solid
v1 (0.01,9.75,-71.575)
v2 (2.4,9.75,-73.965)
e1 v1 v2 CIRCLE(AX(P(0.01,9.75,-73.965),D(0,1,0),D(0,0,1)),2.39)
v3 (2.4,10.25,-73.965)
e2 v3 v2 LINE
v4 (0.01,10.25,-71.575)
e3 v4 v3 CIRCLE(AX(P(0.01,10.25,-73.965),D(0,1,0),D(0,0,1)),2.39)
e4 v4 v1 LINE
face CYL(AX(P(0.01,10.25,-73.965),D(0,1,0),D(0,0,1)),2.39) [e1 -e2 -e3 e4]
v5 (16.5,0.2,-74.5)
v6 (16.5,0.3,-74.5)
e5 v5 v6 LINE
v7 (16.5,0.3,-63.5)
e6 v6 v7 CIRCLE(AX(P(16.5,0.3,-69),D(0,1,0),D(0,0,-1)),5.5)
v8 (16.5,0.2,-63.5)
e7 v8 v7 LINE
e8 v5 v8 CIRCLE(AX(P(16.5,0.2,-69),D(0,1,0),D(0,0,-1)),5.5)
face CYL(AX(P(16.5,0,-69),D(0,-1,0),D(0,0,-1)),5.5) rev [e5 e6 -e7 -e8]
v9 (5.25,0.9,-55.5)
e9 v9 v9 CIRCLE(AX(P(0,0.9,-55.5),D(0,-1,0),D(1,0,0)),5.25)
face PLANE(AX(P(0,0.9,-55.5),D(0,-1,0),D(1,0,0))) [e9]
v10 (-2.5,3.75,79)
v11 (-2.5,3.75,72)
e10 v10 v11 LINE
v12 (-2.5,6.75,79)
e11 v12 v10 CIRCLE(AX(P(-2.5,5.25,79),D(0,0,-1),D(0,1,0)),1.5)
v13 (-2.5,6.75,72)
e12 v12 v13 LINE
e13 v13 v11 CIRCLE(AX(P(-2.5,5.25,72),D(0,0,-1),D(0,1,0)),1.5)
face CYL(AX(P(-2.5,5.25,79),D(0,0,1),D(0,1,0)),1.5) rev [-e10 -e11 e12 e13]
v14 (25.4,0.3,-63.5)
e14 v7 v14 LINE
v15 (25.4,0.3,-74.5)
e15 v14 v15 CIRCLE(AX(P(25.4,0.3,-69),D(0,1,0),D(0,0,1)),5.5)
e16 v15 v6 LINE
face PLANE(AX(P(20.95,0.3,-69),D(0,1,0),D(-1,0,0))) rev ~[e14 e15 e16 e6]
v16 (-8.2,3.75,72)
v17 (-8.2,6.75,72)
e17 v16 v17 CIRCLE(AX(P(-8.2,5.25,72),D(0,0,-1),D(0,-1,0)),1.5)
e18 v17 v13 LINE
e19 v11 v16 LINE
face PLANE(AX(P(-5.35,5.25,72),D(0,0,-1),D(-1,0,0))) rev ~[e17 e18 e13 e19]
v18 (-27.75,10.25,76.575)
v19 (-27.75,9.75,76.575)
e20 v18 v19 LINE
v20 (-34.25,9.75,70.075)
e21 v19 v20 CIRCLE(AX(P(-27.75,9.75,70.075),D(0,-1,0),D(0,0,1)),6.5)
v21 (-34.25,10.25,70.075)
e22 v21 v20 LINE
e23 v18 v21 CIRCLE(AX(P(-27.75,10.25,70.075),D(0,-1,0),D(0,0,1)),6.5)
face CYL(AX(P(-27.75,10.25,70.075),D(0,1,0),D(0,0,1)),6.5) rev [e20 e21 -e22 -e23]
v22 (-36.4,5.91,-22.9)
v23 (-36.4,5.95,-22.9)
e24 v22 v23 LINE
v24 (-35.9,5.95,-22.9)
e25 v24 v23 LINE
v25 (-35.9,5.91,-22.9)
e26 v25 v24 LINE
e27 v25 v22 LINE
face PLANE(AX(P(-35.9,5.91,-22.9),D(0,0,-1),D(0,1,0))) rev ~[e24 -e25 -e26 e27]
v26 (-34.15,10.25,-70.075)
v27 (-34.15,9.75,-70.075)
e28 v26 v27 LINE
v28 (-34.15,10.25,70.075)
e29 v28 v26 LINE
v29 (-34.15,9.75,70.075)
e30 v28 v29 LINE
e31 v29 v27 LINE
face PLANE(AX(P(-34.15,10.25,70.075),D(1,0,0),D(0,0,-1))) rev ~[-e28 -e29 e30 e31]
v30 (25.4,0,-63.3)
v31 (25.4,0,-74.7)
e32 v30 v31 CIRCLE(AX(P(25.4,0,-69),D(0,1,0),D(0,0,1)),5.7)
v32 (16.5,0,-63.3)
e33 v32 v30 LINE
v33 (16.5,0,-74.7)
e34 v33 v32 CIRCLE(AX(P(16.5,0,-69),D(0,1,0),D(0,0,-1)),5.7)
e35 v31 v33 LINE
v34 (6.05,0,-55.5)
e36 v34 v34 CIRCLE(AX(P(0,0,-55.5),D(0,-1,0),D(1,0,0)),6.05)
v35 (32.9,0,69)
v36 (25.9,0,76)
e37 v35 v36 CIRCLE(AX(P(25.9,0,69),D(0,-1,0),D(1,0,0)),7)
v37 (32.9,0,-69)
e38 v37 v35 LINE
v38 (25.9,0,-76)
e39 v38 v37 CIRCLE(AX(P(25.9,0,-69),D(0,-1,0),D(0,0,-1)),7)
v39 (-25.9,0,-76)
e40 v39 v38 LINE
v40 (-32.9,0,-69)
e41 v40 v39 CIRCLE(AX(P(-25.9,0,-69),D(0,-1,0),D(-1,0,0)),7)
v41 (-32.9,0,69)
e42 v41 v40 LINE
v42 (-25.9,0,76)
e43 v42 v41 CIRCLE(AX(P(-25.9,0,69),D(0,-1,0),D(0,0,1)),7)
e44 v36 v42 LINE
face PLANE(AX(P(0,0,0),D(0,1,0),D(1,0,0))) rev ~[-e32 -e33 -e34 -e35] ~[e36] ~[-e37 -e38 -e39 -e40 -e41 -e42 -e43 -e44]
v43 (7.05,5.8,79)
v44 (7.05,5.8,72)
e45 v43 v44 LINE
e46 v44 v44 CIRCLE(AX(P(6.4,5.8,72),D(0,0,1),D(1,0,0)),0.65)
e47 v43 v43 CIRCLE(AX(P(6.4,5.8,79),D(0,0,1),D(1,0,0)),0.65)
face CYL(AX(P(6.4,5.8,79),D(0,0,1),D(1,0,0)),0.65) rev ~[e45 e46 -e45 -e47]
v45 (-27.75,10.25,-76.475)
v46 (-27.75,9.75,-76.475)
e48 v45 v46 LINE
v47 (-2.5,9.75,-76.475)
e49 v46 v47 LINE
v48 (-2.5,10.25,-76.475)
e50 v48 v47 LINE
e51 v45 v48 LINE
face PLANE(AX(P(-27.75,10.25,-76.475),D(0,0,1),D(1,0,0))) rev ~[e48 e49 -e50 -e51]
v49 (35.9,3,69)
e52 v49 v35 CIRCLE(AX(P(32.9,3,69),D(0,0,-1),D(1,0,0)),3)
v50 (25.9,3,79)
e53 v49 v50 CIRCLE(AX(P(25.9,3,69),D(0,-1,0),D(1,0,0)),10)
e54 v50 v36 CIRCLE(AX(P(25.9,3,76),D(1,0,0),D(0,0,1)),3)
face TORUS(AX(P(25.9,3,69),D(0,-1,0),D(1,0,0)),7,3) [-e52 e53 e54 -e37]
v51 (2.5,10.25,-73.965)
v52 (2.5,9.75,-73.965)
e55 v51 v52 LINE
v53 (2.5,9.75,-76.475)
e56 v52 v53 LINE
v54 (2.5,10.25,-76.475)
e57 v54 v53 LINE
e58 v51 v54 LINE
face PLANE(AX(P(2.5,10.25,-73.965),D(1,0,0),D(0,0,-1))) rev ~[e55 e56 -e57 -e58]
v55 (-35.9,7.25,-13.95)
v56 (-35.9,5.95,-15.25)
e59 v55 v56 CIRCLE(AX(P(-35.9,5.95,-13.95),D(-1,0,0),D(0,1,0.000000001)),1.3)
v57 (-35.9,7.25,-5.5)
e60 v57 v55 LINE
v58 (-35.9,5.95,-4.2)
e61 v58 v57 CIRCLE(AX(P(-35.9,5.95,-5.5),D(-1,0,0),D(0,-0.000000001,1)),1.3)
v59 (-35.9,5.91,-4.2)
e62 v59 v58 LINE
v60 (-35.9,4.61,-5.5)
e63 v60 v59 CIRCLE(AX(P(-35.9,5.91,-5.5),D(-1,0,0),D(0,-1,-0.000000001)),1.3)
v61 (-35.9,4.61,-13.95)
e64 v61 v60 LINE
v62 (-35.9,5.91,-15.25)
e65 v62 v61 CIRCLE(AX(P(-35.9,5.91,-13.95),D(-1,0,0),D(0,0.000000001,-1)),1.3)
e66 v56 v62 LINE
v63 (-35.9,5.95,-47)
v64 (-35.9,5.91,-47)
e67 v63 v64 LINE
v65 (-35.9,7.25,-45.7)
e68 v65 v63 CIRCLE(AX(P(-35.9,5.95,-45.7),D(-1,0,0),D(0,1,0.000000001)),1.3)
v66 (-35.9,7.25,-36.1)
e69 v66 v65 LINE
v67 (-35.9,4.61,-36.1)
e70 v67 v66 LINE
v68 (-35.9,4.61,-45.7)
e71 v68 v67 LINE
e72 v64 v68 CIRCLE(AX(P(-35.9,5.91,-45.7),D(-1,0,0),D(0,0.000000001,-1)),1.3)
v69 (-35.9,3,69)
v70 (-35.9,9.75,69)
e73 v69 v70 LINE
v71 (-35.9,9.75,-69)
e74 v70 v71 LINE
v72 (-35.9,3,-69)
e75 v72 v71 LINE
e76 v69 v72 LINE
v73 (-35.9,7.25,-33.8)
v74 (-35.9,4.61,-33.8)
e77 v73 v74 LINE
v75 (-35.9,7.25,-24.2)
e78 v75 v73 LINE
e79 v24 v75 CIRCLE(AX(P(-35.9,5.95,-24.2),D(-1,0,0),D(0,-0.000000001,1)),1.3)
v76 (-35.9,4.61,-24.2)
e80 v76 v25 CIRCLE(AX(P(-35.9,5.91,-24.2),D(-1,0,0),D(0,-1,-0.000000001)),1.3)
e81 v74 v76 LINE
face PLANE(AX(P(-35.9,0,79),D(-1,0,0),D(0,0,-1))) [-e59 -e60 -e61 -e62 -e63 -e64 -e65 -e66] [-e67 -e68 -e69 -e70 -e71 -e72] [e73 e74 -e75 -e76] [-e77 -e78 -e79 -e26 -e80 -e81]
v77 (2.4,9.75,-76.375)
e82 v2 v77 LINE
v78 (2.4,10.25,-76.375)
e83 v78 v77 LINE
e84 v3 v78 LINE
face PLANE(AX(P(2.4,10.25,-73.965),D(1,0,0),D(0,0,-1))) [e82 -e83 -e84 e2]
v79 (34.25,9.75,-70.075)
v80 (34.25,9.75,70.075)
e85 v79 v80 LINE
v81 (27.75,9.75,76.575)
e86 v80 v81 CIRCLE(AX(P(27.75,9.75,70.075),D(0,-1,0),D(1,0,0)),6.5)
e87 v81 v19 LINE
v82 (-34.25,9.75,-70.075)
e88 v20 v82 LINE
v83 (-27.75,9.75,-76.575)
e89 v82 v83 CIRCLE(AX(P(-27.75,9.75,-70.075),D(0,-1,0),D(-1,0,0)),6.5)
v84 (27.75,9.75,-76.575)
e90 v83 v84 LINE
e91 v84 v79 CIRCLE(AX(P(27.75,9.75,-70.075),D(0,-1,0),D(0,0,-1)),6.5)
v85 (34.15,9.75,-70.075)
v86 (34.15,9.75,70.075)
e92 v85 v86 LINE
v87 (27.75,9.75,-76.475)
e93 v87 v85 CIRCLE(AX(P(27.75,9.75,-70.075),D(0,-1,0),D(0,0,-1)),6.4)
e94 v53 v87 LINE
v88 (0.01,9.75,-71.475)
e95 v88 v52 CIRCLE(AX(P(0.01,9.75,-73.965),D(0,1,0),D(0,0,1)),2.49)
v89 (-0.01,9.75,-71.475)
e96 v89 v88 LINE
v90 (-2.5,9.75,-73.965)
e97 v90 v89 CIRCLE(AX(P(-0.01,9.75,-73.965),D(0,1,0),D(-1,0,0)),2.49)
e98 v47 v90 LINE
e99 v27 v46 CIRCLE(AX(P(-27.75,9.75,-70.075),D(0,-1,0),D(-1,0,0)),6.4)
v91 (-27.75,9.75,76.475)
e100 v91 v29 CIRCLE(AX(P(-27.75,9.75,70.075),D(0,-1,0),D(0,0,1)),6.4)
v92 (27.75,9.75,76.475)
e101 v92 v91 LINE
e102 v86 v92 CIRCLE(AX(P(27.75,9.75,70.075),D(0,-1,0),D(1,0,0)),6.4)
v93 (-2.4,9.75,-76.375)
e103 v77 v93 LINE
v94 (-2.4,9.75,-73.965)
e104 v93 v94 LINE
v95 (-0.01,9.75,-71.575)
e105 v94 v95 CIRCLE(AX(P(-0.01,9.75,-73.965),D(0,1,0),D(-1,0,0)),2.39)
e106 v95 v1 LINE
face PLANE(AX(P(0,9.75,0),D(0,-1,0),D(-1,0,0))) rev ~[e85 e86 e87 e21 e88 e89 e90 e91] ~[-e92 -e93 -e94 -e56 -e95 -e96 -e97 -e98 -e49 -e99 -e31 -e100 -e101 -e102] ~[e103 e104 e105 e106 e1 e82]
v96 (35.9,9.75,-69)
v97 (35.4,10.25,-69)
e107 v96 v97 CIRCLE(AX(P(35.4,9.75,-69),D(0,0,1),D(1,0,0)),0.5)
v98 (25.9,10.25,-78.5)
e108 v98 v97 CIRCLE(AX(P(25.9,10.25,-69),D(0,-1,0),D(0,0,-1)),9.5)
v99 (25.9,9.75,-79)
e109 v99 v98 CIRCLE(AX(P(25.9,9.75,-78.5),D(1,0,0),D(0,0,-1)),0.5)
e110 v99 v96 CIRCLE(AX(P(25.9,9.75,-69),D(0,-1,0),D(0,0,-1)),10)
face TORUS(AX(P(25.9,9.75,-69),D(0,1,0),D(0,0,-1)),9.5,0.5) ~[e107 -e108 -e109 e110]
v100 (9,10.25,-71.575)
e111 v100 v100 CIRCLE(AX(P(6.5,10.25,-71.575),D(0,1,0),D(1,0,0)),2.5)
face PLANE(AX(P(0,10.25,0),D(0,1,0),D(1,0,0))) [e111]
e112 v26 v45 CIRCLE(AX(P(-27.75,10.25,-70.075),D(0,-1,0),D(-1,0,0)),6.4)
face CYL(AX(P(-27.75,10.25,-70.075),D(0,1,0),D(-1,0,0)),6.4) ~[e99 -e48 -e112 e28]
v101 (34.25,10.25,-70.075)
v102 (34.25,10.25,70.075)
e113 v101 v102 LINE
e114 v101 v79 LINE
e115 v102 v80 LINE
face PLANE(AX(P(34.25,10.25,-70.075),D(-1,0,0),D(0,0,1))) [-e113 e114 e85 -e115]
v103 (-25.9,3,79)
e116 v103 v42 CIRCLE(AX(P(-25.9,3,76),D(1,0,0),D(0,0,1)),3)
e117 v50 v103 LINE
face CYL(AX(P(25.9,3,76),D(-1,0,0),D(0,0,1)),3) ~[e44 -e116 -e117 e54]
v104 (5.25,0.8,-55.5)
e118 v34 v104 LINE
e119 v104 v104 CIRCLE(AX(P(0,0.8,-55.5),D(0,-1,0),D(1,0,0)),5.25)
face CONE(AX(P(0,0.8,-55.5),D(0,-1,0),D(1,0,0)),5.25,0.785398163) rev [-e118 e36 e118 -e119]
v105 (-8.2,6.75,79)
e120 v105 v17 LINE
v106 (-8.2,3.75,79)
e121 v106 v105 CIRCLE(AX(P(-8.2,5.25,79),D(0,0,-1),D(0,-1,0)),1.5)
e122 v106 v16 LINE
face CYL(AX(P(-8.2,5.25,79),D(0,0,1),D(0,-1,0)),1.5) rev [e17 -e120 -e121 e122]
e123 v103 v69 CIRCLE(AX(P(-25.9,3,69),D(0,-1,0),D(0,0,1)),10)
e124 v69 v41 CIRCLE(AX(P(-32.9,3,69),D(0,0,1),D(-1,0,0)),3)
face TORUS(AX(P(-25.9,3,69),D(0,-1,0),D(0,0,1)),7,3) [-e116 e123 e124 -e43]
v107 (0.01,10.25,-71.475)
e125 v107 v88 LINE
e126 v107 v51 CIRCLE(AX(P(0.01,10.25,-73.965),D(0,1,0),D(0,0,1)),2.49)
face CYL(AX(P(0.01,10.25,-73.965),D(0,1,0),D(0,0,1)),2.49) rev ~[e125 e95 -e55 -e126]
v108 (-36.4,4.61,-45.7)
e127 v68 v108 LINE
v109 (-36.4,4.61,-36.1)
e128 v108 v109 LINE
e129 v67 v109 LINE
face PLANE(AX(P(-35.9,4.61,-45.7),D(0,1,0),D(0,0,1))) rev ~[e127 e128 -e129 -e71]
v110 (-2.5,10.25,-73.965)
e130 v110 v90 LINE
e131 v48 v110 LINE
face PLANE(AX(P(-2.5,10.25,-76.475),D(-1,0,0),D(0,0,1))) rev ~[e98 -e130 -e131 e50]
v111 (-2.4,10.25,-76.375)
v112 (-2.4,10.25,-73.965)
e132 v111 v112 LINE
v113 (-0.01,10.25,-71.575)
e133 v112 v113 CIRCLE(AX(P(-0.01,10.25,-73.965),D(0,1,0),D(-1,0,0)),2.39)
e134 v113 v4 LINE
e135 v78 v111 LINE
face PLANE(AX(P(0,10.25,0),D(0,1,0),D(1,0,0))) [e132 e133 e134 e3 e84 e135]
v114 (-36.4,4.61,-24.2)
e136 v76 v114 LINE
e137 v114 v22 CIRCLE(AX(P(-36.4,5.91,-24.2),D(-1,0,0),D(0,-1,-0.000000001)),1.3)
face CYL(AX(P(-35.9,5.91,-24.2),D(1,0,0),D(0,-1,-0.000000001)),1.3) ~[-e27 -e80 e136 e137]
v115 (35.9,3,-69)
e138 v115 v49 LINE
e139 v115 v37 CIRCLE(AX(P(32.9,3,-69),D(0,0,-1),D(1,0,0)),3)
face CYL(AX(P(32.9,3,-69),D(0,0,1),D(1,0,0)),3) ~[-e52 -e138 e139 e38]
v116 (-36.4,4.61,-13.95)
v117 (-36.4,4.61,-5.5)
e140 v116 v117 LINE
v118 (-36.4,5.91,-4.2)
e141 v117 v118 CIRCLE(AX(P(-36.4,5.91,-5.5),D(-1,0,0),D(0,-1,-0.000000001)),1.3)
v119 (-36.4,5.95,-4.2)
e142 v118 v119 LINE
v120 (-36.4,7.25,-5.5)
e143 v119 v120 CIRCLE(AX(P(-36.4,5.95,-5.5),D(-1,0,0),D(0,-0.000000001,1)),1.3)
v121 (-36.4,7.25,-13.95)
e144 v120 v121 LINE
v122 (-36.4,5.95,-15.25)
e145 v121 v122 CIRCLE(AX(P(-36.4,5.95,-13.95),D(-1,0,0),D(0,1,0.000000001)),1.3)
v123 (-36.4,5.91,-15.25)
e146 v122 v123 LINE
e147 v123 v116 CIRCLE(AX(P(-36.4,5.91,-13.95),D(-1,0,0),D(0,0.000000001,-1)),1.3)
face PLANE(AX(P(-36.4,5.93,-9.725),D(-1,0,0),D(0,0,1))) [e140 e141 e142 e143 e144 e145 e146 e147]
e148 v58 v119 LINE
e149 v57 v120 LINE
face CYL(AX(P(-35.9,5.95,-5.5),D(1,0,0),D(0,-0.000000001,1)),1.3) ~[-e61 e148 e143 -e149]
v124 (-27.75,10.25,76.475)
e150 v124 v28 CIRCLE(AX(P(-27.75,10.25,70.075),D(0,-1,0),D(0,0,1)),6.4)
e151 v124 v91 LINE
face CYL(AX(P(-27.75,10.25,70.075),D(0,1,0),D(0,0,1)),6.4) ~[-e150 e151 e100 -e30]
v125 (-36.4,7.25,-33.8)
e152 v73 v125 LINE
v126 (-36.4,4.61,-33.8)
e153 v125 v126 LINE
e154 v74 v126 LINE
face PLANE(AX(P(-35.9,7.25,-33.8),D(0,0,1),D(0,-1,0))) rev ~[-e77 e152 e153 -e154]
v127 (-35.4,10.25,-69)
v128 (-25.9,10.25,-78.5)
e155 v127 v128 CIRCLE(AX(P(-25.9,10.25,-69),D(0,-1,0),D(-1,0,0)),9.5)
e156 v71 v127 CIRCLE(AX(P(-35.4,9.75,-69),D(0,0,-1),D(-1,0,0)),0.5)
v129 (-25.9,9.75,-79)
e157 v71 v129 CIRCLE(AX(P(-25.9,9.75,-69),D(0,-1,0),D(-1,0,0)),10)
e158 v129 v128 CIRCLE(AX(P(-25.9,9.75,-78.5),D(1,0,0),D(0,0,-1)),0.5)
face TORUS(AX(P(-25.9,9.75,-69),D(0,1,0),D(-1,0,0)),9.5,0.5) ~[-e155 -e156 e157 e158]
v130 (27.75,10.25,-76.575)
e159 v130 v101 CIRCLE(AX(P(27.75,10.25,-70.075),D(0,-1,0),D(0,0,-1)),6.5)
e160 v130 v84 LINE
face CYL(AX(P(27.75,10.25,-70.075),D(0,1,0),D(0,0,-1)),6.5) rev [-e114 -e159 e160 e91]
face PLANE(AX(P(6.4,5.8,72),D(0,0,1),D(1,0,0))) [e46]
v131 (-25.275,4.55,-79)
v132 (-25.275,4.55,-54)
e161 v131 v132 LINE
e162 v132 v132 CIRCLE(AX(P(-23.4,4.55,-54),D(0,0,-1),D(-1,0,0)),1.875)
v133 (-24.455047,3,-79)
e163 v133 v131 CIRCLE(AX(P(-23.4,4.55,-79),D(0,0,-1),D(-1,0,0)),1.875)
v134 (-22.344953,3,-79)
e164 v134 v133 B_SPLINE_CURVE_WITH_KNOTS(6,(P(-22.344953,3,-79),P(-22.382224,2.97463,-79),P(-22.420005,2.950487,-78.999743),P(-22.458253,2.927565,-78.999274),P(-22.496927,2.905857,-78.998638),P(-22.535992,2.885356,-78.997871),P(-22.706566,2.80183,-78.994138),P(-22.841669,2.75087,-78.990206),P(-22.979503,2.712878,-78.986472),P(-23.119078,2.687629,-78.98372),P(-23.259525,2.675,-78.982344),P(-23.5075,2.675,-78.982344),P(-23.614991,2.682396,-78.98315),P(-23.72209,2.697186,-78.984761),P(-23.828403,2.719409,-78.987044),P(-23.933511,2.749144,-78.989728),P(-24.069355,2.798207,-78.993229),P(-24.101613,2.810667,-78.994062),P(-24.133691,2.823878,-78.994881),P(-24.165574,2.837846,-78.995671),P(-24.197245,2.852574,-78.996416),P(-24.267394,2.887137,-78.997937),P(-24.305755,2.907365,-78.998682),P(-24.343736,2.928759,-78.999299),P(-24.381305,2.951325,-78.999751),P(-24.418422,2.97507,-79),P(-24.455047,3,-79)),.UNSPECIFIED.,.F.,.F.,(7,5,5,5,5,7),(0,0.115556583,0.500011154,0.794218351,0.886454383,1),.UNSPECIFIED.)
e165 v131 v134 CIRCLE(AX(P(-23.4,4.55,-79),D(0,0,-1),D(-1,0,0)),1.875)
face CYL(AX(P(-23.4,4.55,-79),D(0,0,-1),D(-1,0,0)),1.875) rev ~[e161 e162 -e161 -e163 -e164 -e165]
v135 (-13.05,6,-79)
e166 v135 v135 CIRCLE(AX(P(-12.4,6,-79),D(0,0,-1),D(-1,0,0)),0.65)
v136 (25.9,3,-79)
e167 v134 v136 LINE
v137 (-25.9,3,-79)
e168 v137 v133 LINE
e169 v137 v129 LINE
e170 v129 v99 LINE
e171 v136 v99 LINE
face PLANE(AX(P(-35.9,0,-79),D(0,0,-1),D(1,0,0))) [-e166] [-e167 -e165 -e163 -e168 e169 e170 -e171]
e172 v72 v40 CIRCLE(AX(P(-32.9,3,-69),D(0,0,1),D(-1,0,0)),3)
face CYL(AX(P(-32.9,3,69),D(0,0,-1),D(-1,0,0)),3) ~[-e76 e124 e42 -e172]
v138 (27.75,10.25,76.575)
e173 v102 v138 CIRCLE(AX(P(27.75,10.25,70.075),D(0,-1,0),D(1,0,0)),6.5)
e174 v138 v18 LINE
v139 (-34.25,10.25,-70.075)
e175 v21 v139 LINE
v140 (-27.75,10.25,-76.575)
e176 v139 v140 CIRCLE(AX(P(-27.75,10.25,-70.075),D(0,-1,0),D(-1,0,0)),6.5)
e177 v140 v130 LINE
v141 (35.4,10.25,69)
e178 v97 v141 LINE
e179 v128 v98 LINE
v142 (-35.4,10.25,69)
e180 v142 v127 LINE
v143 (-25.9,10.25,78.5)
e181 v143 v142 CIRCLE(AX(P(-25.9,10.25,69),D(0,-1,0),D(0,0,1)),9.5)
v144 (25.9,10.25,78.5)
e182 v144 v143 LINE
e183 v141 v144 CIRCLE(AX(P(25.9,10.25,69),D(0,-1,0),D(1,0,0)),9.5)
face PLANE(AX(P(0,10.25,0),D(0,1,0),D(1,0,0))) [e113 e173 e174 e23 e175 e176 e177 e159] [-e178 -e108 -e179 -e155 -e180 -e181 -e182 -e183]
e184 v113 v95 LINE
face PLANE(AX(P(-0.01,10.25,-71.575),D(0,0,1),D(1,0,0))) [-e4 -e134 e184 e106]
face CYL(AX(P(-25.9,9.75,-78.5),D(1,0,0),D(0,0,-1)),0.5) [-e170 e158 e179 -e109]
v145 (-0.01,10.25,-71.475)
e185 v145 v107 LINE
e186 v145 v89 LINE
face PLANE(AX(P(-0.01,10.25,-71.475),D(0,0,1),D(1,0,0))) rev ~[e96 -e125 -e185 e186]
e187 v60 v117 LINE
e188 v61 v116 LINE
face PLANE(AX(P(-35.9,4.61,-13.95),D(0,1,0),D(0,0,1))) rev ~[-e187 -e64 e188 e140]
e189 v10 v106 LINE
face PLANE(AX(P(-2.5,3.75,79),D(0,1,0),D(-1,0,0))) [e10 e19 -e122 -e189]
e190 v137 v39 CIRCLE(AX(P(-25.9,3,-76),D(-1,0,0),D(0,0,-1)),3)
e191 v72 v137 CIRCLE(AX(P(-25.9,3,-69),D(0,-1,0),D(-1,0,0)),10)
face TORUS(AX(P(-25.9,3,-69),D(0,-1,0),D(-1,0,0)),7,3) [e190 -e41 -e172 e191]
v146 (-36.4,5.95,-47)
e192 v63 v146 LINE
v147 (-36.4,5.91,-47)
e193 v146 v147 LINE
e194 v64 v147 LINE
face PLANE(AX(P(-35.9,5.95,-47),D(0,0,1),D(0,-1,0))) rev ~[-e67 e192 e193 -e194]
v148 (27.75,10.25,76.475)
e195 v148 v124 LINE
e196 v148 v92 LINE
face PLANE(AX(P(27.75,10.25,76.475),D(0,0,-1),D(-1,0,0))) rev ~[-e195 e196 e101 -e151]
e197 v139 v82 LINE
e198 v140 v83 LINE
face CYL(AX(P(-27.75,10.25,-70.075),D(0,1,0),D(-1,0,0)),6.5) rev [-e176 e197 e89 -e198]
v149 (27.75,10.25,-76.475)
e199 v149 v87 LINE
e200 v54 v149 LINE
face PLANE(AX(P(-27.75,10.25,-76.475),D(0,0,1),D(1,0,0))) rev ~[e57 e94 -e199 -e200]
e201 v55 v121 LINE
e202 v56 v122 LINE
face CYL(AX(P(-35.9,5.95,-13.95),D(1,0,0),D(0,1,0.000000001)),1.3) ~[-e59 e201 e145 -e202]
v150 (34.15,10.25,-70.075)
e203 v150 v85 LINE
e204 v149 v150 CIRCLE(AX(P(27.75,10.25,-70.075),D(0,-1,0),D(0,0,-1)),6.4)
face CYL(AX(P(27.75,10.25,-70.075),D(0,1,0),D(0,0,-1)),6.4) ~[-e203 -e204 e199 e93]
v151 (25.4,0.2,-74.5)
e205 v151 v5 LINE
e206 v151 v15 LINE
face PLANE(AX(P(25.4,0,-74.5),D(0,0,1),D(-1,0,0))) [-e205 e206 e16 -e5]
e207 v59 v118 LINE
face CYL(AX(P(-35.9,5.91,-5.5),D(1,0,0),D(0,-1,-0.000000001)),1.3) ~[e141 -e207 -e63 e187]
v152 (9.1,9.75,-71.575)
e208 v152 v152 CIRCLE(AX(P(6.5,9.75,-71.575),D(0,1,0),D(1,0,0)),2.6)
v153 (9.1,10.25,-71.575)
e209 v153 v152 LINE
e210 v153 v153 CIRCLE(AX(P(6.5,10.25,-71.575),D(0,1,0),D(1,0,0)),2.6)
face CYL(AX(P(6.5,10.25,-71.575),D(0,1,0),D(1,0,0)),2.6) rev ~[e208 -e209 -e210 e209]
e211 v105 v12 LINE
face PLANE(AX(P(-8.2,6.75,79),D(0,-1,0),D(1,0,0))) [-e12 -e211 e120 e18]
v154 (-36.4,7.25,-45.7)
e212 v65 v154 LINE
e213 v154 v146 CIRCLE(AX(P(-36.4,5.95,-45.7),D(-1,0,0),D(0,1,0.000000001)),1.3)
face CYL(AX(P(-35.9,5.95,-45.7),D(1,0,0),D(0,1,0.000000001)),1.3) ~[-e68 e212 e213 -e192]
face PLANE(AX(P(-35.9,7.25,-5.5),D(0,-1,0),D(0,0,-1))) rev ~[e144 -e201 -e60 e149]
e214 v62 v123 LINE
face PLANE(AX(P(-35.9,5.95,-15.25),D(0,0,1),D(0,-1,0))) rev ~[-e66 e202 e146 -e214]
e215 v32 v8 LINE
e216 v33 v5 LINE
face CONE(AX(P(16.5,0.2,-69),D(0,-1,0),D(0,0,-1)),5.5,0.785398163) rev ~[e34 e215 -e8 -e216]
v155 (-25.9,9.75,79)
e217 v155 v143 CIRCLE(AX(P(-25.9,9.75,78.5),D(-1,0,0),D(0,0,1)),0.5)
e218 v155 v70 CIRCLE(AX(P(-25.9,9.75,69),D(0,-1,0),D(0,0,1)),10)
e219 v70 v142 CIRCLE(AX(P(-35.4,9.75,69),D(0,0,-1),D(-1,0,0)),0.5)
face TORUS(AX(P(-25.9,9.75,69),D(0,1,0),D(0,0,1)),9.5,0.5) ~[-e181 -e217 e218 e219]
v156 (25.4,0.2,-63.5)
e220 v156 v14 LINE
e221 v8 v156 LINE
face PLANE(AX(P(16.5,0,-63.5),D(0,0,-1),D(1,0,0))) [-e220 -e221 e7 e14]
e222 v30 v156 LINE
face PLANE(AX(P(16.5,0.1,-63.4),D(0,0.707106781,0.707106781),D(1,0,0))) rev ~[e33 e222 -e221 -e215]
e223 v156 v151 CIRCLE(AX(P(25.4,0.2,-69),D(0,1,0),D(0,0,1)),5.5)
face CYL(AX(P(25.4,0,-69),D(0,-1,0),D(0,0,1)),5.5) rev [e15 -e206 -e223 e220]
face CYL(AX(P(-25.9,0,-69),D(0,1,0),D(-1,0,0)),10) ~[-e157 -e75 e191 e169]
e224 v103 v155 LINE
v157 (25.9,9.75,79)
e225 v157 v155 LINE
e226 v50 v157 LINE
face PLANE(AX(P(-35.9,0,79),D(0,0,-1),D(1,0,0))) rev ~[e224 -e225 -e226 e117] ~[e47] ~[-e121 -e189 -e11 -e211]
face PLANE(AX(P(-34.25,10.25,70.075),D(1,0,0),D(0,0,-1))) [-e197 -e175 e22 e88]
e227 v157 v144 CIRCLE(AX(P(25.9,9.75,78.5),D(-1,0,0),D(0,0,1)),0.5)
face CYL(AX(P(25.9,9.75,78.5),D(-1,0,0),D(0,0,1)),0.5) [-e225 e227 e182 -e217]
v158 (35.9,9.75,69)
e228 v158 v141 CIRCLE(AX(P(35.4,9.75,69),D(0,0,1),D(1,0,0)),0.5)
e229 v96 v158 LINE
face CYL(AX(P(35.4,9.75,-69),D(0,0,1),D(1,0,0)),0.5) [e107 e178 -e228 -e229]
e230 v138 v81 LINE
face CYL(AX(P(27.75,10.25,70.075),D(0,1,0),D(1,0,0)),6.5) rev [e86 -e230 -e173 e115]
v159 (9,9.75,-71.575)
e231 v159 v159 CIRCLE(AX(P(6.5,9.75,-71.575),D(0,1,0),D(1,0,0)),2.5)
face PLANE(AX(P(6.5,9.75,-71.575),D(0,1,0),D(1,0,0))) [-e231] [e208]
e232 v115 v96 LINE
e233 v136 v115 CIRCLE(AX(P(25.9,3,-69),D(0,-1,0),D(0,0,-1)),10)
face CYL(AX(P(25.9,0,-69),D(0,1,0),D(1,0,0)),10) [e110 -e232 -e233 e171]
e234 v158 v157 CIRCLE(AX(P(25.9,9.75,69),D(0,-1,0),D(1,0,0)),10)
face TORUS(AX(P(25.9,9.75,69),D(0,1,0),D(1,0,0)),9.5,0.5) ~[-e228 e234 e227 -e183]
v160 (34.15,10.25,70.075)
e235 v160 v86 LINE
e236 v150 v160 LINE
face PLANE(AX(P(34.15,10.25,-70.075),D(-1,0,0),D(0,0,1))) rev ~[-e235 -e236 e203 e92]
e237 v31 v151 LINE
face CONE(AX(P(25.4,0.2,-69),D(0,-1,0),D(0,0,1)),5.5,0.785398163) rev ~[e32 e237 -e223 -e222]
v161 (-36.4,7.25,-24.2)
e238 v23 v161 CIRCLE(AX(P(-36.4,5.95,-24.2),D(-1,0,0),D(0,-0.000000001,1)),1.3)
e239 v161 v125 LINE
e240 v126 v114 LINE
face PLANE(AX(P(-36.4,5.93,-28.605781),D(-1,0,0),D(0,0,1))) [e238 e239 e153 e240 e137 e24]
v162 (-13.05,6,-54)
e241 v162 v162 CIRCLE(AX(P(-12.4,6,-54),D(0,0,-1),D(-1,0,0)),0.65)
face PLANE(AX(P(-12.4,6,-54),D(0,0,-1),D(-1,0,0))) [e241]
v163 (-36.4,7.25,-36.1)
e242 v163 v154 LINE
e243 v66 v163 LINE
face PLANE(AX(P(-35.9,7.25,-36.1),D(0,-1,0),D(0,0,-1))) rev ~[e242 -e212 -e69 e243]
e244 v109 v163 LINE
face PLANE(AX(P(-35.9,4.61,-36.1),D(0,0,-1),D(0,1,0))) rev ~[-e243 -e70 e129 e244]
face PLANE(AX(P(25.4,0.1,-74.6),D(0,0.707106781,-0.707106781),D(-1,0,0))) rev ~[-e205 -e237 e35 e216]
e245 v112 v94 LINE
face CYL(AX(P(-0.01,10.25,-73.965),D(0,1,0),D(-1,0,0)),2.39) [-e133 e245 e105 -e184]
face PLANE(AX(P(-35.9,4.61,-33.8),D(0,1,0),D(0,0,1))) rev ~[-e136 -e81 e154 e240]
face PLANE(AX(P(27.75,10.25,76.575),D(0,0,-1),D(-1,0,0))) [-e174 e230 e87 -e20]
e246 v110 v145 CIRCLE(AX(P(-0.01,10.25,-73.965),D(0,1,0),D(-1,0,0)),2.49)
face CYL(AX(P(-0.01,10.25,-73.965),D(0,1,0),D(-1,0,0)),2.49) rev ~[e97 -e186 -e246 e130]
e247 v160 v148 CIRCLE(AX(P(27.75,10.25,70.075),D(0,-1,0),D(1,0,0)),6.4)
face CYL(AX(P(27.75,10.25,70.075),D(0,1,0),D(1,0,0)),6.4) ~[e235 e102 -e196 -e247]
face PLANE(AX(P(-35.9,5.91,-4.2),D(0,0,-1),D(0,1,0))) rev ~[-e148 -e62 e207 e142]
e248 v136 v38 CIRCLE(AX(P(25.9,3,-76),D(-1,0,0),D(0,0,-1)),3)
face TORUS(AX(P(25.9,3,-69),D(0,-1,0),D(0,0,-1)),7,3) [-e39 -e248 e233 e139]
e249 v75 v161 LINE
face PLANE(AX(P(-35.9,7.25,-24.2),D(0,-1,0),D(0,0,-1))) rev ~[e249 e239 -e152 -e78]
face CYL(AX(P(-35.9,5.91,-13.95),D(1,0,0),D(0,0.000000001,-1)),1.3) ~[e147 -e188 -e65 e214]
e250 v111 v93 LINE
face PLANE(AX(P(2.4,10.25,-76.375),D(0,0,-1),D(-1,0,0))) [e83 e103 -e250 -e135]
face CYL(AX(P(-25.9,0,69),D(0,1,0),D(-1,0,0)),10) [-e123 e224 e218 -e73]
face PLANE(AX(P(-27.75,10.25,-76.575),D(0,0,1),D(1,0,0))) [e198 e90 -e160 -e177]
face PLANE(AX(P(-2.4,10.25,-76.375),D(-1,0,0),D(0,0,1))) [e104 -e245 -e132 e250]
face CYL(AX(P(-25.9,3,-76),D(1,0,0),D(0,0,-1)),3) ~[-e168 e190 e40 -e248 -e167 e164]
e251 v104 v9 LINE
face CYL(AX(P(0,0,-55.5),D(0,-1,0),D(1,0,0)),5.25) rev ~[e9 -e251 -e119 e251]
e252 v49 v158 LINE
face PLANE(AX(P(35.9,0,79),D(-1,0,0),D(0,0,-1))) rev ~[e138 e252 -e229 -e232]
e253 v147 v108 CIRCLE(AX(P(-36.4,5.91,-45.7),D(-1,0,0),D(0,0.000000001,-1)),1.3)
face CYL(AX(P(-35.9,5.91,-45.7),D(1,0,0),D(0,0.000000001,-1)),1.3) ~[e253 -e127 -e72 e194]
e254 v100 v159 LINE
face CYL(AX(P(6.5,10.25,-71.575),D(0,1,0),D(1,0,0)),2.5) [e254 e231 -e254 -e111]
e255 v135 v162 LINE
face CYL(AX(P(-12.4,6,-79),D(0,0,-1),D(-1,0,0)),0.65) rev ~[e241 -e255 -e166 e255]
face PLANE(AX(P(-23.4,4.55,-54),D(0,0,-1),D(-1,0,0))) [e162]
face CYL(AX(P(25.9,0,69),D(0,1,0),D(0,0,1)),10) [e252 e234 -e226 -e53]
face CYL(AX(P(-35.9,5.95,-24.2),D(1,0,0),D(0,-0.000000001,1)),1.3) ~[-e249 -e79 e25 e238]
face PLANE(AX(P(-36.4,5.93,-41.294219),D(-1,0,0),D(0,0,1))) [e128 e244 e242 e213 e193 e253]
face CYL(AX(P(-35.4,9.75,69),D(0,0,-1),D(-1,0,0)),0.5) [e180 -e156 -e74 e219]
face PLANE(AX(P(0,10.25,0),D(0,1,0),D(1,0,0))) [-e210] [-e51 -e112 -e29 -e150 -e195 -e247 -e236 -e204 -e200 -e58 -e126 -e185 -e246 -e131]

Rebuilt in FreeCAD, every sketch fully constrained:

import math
import FreeCAD as App
import Part
import Sketcher

V = App.Vector


def edges_at(feature, points):
    """Names of the edges that pass closest to the given points."""
    edges = feature.Shape.Edges
    near = lambda p: min(range(len(edges)), key=lambda i: edges[i].distToShape(Part.Vertex(*p))[0])
    return sorted({f"Edge{near(p) + 1}" for p in points})


def add_polygon(sketch, points):
    """Adds a closed chain of lines whose ends are joined by coincident constraints."""
    first, n = sketch.GeometryCount, len(points)
    for a, b in zip(points, points[1:] + points[:1]):
        sketch.addGeometry(Part.LineSegment(App.Vector(*a, 0), App.Vector(*b, 0)), False)
    for i in range(n):
        sketch.addConstraint(Sketcher.Constraint("Coincident", first + i, 2, first + (i + 1) % n, 1))

doc = App.newDocument("Part")
body = doc.addObject("PartDesign::Body", "Body")

# Sketch on XZ plane
sketch1 = body.newObject("Sketcher::SketchObject", "Sketch")
sketch1.AttachmentSupport = (doc.getObject("XZ_Plane"), [""])
sketch1.MapMode = "FlatFace"
add_polygon(sketch1, [(-35.9, -79), (-35.9, 79), (35.9, 79), (35.9, -79)])  # lines 0-3
sketch1.addConstraint(Sketcher.Constraint("Vertical", 0))
sketch1.addConstraint(Sketcher.Constraint("Horizontal", 1))
sketch1.addConstraint(Sketcher.Constraint("Vertical", 2))
sketch1.addConstraint(Sketcher.Constraint("Horizontal", 3))
sketch1.addConstraint(Sketcher.Constraint("Symmetric", 0, 2, 2, 2, -1, 1))
sketch1.addConstraint(Sketcher.Constraint("DistanceY", 0, 1, 0, 2, 158.0))
sketch1.addConstraint(Sketcher.Constraint("DistanceX", 1, 1, 1, 2, 71.8))
pad1 = body.newObject("PartDesign::Pad", "Pad")
pad1.Profile = sketch1
pad1.Length = 10.25
pad1.Reversed = True
doc.recompute()

fillet = body.newObject("PartDesign::Fillet", "Fillet")
fillet.Base = (pad1, edges_at(pad1, [
    (35.9, 5.125, 79),
    (-35.9, 5.125, 79),
    (-35.9, 5.125, -79),
    (35.9, 5.125, -79),
]))
fillet.Radius = 10
doc.recompute()

fillet2 = body.newObject("PartDesign::Fillet", "Fillet001")
fillet2.Base = (fillet, edges_at(fillet, [
    (-35.9, 0, 0),
    (35.9, 0, 0),
    (0, 0, 79),
    (0, 0, -79),
    (32.971, 0, 76.071),
    (-32.971, 0, 76.071),
    (32.971, 0, -76.071),
    (-32.971, 0, -76.071),
]))
fillet2.Radius = 3
doc.recompute()

fillet3 = body.newObject("PartDesign::Fillet", "Fillet002")
fillet3.Base = (fillet2, edges_at(fillet2, [
    (-35.9, 10.25, 0),
    (0, 10.25, -79),
    (35.9, 10.25, 0),
    (0, 10.25, 79),
    (32.971, 10.25, 76.071),
    (-32.971, 10.25, 76.071),
    (32.971, 10.25, -76.071),
    (-32.971, 10.25, -76.071),
]))
fillet3.Radius = 0.5

# Sketch on XZ plane
sketch2 = body.newObject("Sketcher::SketchObject", "Sketch001")
sketch2.AttachmentSupport = (doc.getObject("XZ_Plane"), [""])
sketch2.MapMode = "FlatFace"
sketch2.AttachmentOffset = App.Placement(V(0, 0, -10.25), App.Rotation())
sketch2.addGeometry(Part.LineSegment(V(27.75, -76.575, 0), V(-27.75, -76.575, 0)), False)
sketch2.addGeometry(Part.ArcOfCircle(Part.Circle(V(-27.75, -70.075, 0), V(0, 0, 1), 6.5), math.radians(180), math.radians(270)), False)
sketch2.addGeometry(Part.LineSegment(V(-34.25, -70.075, 0), V(-34.25, 70.075, 0)), False)
sketch2.addGeometry(Part.ArcOfCircle(Part.Circle(V(-27.75, 70.075, 0), V(0, 0, 1), 6.5), math.radians(90), math.radians(180)), False)
sketch2.addGeometry(Part.LineSegment(V(-27.75, 76.575, 0), V(27.75, 76.575, 0)), False)
sketch2.addGeometry(Part.ArcOfCircle(Part.Circle(V(27.75, 70.075, 0), V(0, 0, 1), 6.5), math.radians(0), math.radians(90)), False)
sketch2.addGeometry(Part.LineSegment(V(34.25, 70.075, 0), V(34.25, -70.075, 0)), False)
sketch2.addGeometry(Part.ArcOfCircle(Part.Circle(V(27.75, -70.075, 0), V(0, 0, 1), 6.5), math.radians(-90), math.radians(0)), False)
sketch2.addGeometry(Part.LineSegment(V(-27.75, -76.475, 0), V(27.75, -76.475, 0)), False)
sketch2.addGeometry(Part.ArcOfCircle(Part.Circle(V(27.75, -70.075, 0), V(0, 0, 1), 6.4), math.radians(-90), math.radians(0)), False)
sketch2.addGeometry(Part.LineSegment(V(34.15, -70.075, 0), V(34.15, 70.075, 0)), False)
sketch2.addGeometry(Part.ArcOfCircle(Part.Circle(V(27.75, 70.075, 0), V(0, 0, 1), 6.4), math.radians(0), math.radians(90)), False)
sketch2.addGeometry(Part.LineSegment(V(27.75, 76.475, 0), V(-27.75, 76.475, 0)), False)
sketch2.addGeometry(Part.ArcOfCircle(Part.Circle(V(-27.75, 70.075, 0), V(0, 0, 1), 6.4), math.radians(90), math.radians(180)), False)
sketch2.addGeometry(Part.LineSegment(V(-34.15, 70.075, 0), V(-34.15, -70.075, 0)), False)
sketch2.addGeometry(Part.ArcOfCircle(Part.Circle(V(-27.75, -70.075, 0), V(0, 0, 1), 6.4), math.radians(180), math.radians(270)), False)
sketch2.addConstraint(Sketcher.Constraint("Tangent", 0, 2, 1, 2))
sketch2.addConstraint(Sketcher.Constraint("Tangent", 1, 1, 2, 1))
sketch2.addConstraint(Sketcher.Constraint("Tangent", 2, 2, 3, 2))
sketch2.addConstraint(Sketcher.Constraint("Tangent", 3, 1, 4, 1))
sketch2.addConstraint(Sketcher.Constraint("Tangent", 4, 2, 5, 2))
sketch2.addConstraint(Sketcher.Constraint("Tangent", 5, 1, 6, 1))
sketch2.addConstraint(Sketcher.Constraint("Tangent", 6, 2, 7, 2))
sketch2.addConstraint(Sketcher.Constraint("Tangent", 7, 1, 0, 1))
sketch2.addConstraint(Sketcher.Constraint("Tangent", 8, 2, 9, 1))
sketch2.addConstraint(Sketcher.Constraint("Tangent", 9, 2, 10, 1))
sketch2.addConstraint(Sketcher.Constraint("Tangent", 10, 2, 11, 1))
sketch2.addConstraint(Sketcher.Constraint("Tangent", 11, 2, 12, 1))
sketch2.addConstraint(Sketcher.Constraint("Tangent", 12, 2, 13, 1))
sketch2.addConstraint(Sketcher.Constraint("Tangent", 13, 2, 14, 1))
sketch2.addConstraint(Sketcher.Constraint("Tangent", 14, 2, 15, 1))
sketch2.addConstraint(Sketcher.Constraint("Tangent", 15, 2, 8, 1))
sketch2.addConstraint(Sketcher.Constraint("Horizontal", 0))
sketch2.addConstraint(Sketcher.Constraint("Vertical", 2))
sketch2.addConstraint(Sketcher.Constraint("Horizontal", 4))
sketch2.addConstraint(Sketcher.Constraint("Vertical", 6))
sketch2.addConstraint(Sketcher.Constraint("Horizontal", 8))
sketch2.addConstraint(Sketcher.Constraint("Vertical", 10))
sketch2.addConstraint(Sketcher.Constraint("Horizontal", 12))
sketch2.addConstraint(Sketcher.Constraint("Vertical", 14))
sketch2.addConstraint(Sketcher.Constraint("Coincident", 9, 3, 7, 3))
sketch2.addConstraint(Sketcher.Constraint("Coincident", 11, 3, 5, 3))
sketch2.addConstraint(Sketcher.Constraint("Coincident", 13, 3, 3, 3))
sketch2.addConstraint(Sketcher.Constraint("Equal", 1, 3))
sketch2.addConstraint(Sketcher.Constraint("Equal", 3, 5))
sketch2.addConstraint(Sketcher.Constraint("Equal", 5, 7))
sketch2.addConstraint(Sketcher.Constraint("Equal", 13, 15))
sketch2.addConstraint(Sketcher.Constraint("Symmetric", 1, 3, 5, 3, -1, 1))
sketch2.addConstraint(Sketcher.Constraint("Radius", 1, 6.5))
sketch2.addConstraint(Sketcher.Constraint("Radius", 9, 6.4))
sketch2.addConstraint(Sketcher.Constraint("DistanceX", 0, 2, 0, 1, 55.5))
sketch2.addConstraint(Sketcher.Constraint("DistanceY", 2, 1, 2, 2, 140.15))
pocket1 = body.newObject("PartDesign::Pocket", "Pocket")
pocket1.Profile = sketch2
pocket1.Length = 0.5
pocket1.Reversed = True

# Sketch on XZ plane
sketch3 = body.newObject("Sketcher::SketchObject", "Sketch002")
sketch3.AttachmentSupport = (doc.getObject("XZ_Plane"), [""])
sketch3.MapMode = "FlatFace"
sketch3.AttachmentOffset = App.Placement(V(0, 0, -10.25), App.Rotation())
sketch3.addGeometry(Part.LineSegment(V(-0.01, -71.475, 0), V(0.01, -71.475, 0)), False)
sketch3.addGeometry(Part.ArcOfCircle(Part.Circle(V(0.01, -73.965, 0), V(0, 0, 1), 2.49), math.radians(0), math.radians(90)), False)
sketch3.addGeometry(Part.LineSegment(V(2.5, -73.965, 0), V(2.5, -76.475, 0)), False)
sketch3.addGeometry(Part.LineSegment(V(2.5, -76.475, 0), V(-2.5, -76.475, 0)), False)
sketch3.addGeometry(Part.LineSegment(V(-2.5, -76.475, 0), V(-2.5, -73.965, 0)), False)
sketch3.addGeometry(Part.ArcOfCircle(Part.Circle(V(-0.01, -73.965, 0), V(0, 0, 1), 2.49), math.radians(90), math.radians(180)), False)
sketch3.addGeometry(Part.LineSegment(V(0.01, -71.575, 0), V(-0.01, -71.575, 0)), False)
sketch3.addGeometry(Part.ArcOfCircle(Part.Circle(V(-0.01, -73.965, 0), V(0, 0, 1), 2.39), math.radians(90), math.radians(180)), False)
sketch3.addGeometry(Part.LineSegment(V(-2.4, -73.965, 0), V(-2.4, -76.375, 0)), False)
sketch3.addGeometry(Part.LineSegment(V(-2.4, -76.375, 0), V(2.4, -76.375, 0)), False)
sketch3.addGeometry(Part.LineSegment(V(2.4, -76.375, 0), V(2.4, -73.965, 0)), False)
sketch3.addGeometry(Part.ArcOfCircle(Part.Circle(V(0.01, -73.965, 0), V(0, 0, 1), 2.39), math.radians(0), math.radians(90)), False)
sketch3.addConstraint(Sketcher.Constraint("Tangent", 0, 2, 1, 2))
sketch3.addConstraint(Sketcher.Constraint("Tangent", 1, 1, 2, 1))
sketch3.addConstraint(Sketcher.Constraint("Coincident", 2, 2, 3, 1))
sketch3.addConstraint(Sketcher.Constraint("Coincident", 3, 2, 4, 1))
sketch3.addConstraint(Sketcher.Constraint("Tangent", 4, 2, 5, 2))
sketch3.addConstraint(Sketcher.Constraint("Tangent", 5, 1, 0, 1))
sketch3.addConstraint(Sketcher.Constraint("Tangent", 6, 2, 7, 1))
sketch3.addConstraint(Sketcher.Constraint("Tangent", 7, 2, 8, 1))
sketch3.addConstraint(Sketcher.Constraint("Coincident", 8, 2, 9, 1))
sketch3.addConstraint(Sketcher.Constraint("Coincident", 9, 2, 10, 1))
sketch3.addConstraint(Sketcher.Constraint("Tangent", 10, 2, 11, 1))
sketch3.addConstraint(Sketcher.Constraint("Tangent", 11, 2, 6, 1))
sketch3.addConstraint(Sketcher.Constraint("Horizontal", 0))
sketch3.addConstraint(Sketcher.Constraint("Vertical", 2))
sketch3.addConstraint(Sketcher.Constraint("Horizontal", 3))
sketch3.addConstraint(Sketcher.Constraint("Vertical", 4))
sketch3.addConstraint(Sketcher.Constraint("Horizontal", 6))
sketch3.addConstraint(Sketcher.Constraint("Vertical", 8))
sketch3.addConstraint(Sketcher.Constraint("Horizontal", 9))
sketch3.addConstraint(Sketcher.Constraint("Vertical", 10))
sketch3.addConstraint(Sketcher.Constraint("Coincident", 7, 3, 5, 3))
sketch3.addConstraint(Sketcher.Constraint("Coincident", 11, 3, 1, 3))
sketch3.addConstraint(Sketcher.Constraint("Equal", 1, 5))
sketch3.addConstraint(Sketcher.Constraint("DistanceX", 3, 2, 3, 1, 5.0))
sketch3.addConstraint(Sketcher.Constraint("Radius", 1, 2.49))
sketch3.addConstraint(Sketcher.Constraint("Radius", 7, 2.39))
sketch3.addConstraint(Sketcher.Constraint("DistanceY", 2, 2, 2, 1, 2.51))
sketch3.addConstraint(Sketcher.Constraint("DistanceY", 8, 2, 8, 1, 2.41))
sketch3.addConstraint(Sketcher.Constraint("DistanceX", -1, 1, 1, 1, 2.5))
sketch3.addConstraint(Sketcher.Constraint("DistanceY", 1, 3, -1, 1, 73.965))
pocket2 = body.newObject("PartDesign::Pocket", "Pocket001")
pocket2.Profile = sketch3
pocket2.Length = 0.5
pocket2.Reversed = True

# Sketch on XZ plane
sketch4 = body.newObject("Sketcher::SketchObject", "Sketch003")
sketch4.AttachmentSupport = (doc.getObject("XZ_Plane"), [""])
sketch4.MapMode = "FlatFace"
sketch4.AttachmentOffset = App.Placement(V(0, 0, -10.25), App.Rotation())
sketch4.addGeometry(Part.Circle(V(6.5, -71.575, 0), V(0, 0, 1), 2.6), False)
sketch4.addGeometry(Part.Circle(V(6.5, -71.575, 0), V(0, 0, 1), 2.5), False)
sketch4.addConstraint(Sketcher.Constraint("Coincident", 1, 3, 0, 3))
sketch4.addConstraint(Sketcher.Constraint("Diameter", 1, 5.0))
sketch4.addConstraint(Sketcher.Constraint("Diameter", 0, 5.2))
sketch4.addConstraint(Sketcher.Constraint("DistanceX", -1, 1, 0, 3, 6.5))
sketch4.addConstraint(Sketcher.Constraint("DistanceY", 0, 3, -1, 1, 71.575))
pocket3 = body.newObject("PartDesign::Pocket", "Pocket002")
pocket3.Profile = sketch4
pocket3.Length = 0.5
pocket3.Reversed = True

# Sketch on YZ plane
sketch5 = body.newObject("Sketcher::SketchObject", "Sketch004")
sketch5.AttachmentSupport = (doc.getObject("YZ_Plane"), [""])
sketch5.MapMode = "FlatFace"
sketch5.AttachmentOffset = App.Placement(V(0, 0, -35.9), App.Rotation())
sketch5.addGeometry(Part.LineSegment(V(4.61, -45.7, 0), V(4.61, -36.1, 0)), False)
sketch5.addGeometry(Part.LineSegment(V(4.61, -36.1, 0), V(7.25, -36.1, 0)), False)
sketch5.addGeometry(Part.LineSegment(V(7.25, -36.1, 0), V(7.25, -45.7, 0)), False)
sketch5.addGeometry(Part.ArcOfCircle(Part.Circle(V(5.95, -45.7, 0), V(0, 0, 1), 1.3), math.radians(-90), math.radians(0)), False)
sketch5.addGeometry(Part.LineSegment(V(5.95, -47, 0), V(5.91, -47, 0)), False)
sketch5.addGeometry(Part.ArcOfCircle(Part.Circle(V(5.91, -45.7, 0), V(0, 0, 1), 1.3), math.radians(180), math.radians(270)), False)
sketch5.addGeometry(Part.LineSegment(V(7.25, -24.2, 0), V(7.25, -33.8, 0)), False)
sketch5.addGeometry(Part.LineSegment(V(7.25, -33.8, 0), V(4.61, -33.8, 0)), False)
sketch5.addGeometry(Part.LineSegment(V(4.61, -33.8, 0), V(4.61, -24.2, 0)), False)
sketch5.addGeometry(Part.ArcOfCircle(Part.Circle(V(5.91, -24.2, 0), V(0, 0, 1), 1.3), math.radians(90), math.radians(180)), False)
sketch5.addGeometry(Part.LineSegment(V(5.91, -22.9, 0), V(5.95, -22.9, 0)), False)
sketch5.addGeometry(Part.ArcOfCircle(Part.Circle(V(5.95, -24.2, 0), V(0, 0, 1), 1.3), math.radians(0), math.radians(90)), False)
sketch5.addGeometry(Part.LineSegment(V(7.25, -5.5, 0), V(7.25, -13.95, 0)), False)
sketch5.addGeometry(Part.ArcOfCircle(Part.Circle(V(5.95, -13.95, 0), V(0, 0, 1), 1.3), math.radians(-90), math.radians(0)), False)
sketch5.addGeometry(Part.LineSegment(V(5.95, -15.25, 0), V(5.91, -15.25, 0)), False)
sketch5.addGeometry(Part.ArcOfCircle(Part.Circle(V(5.91, -13.95, 0), V(0, 0, 1), 1.3), math.radians(180), math.radians(270)), False)
sketch5.addGeometry(Part.LineSegment(V(4.61, -13.95, 0), V(4.61, -5.5, 0)), False)
sketch5.addGeometry(Part.ArcOfCircle(Part.Circle(V(5.91, -5.5, 0), V(0, 0, 1), 1.3), math.radians(90), math.radians(180)), False)
sketch5.addGeometry(Part.LineSegment(V(5.91, -4.2, 0), V(5.95, -4.2, 0)), False)
sketch5.addGeometry(Part.ArcOfCircle(Part.Circle(V(5.95, -5.5, 0), V(0, 0, 1), 1.3), math.radians(0), math.radians(90)), False)
sketch5.addConstraint(Sketcher.Constraint("Coincident", 0, 2, 1, 1))
sketch5.addConstraint(Sketcher.Constraint("Coincident", 1, 2, 2, 1))
sketch5.addConstraint(Sketcher.Constraint("Tangent", 2, 2, 3, 2))
sketch5.addConstraint(Sketcher.Constraint("Tangent", 3, 1, 4, 1))
sketch5.addConstraint(Sketcher.Constraint("Tangent", 4, 2, 5, 2))
sketch5.addConstraint(Sketcher.Constraint("Tangent", 5, 1, 0, 1))
sketch5.addConstraint(Sketcher.Constraint("Coincident", 6, 2, 7, 1))
sketch5.addConstraint(Sketcher.Constraint("Coincident", 7, 2, 8, 1))
sketch5.addConstraint(Sketcher.Constraint("Tangent", 8, 2, 9, 2))
sketch5.addConstraint(Sketcher.Constraint("Tangent", 9, 1, 10, 1))
sketch5.addConstraint(Sketcher.Constraint("Tangent", 10, 2, 11, 2))
sketch5.addConstraint(Sketcher.Constraint("Tangent", 11, 1, 6, 1))
sketch5.addConstraint(Sketcher.Constraint("Tangent", 12, 2, 13, 2))
sketch5.addConstraint(Sketcher.Constraint("Tangent", 13, 1, 14, 1))
sketch5.addConstraint(Sketcher.Constraint("Tangent", 14, 2, 15, 2))
sketch5.addConstraint(Sketcher.Constraint("Tangent", 15, 1, 16, 1))
sketch5.addConstraint(Sketcher.Constraint("Tangent", 16, 2, 17, 2))
sketch5.addConstraint(Sketcher.Constraint("Tangent", 17, 1, 18, 1))
sketch5.addConstraint(Sketcher.Constraint("Tangent", 18, 2, 19, 2))
sketch5.addConstraint(Sketcher.Constraint("Tangent", 19, 1, 12, 1))
sketch5.addConstraint(Sketcher.Constraint("Vertical", 0))
sketch5.addConstraint(Sketcher.Constraint("Horizontal", 1))
sketch5.addConstraint(Sketcher.Constraint("Vertical", 2))
sketch5.addConstraint(Sketcher.Constraint("Horizontal", 4))
sketch5.addConstraint(Sketcher.Constraint("Vertical", 6))
sketch5.addConstraint(Sketcher.Constraint("Horizontal", 7))
sketch5.addConstraint(Sketcher.Constraint("Vertical", 8))
sketch5.addConstraint(Sketcher.Constraint("Horizontal", 10))
sketch5.addConstraint(Sketcher.Constraint("Vertical", 12))
sketch5.addConstraint(Sketcher.Constraint("Horizontal", 14))
sketch5.addConstraint(Sketcher.Constraint("Vertical", 16))
sketch5.addConstraint(Sketcher.Constraint("Horizontal", 18))
sketch5.addConstraint(Sketcher.Constraint("Equal", 3, 5))
sketch5.addConstraint(Sketcher.Constraint("Equal", 5, 9))
sketch5.addConstraint(Sketcher.Constraint("Equal", 9, 11))
sketch5.addConstraint(Sketcher.Constraint("Equal", 11, 13))
sketch5.addConstraint(Sketcher.Constraint("Equal", 13, 15))
sketch5.addConstraint(Sketcher.Constraint("Equal", 15, 17))
sketch5.addConstraint(Sketcher.Constraint("Equal", 17, 19))
sketch5.addConstraint(Sketcher.Constraint("Vertical", 5, 3, 9, 3))
sketch5.addConstraint(Sketcher.Constraint("Vertical", 3, 3, 11, 3))
sketch5.addConstraint(Sketcher.Constraint("Vertical", 11, 3, 13, 3))
sketch5.addConstraint(Sketcher.Constraint("Vertical", 9, 3, 15, 3))
sketch5.addConstraint(Sketcher.Constraint("Equal", 2, 6))
sketch5.addConstraint(Sketcher.Constraint("Radius", 3, 1.3))
sketch5.addConstraint(Sketcher.Constraint("DistanceY", 0, 1, 0, 2, 9.6))
sketch5.addConstraint(Sketcher.Constraint("DistanceY", 3, 1, -1, 1, 47.0))
sketch5.addConstraint(Sketcher.Constraint("DistanceX", 1, 1, 1, 2, 2.64))
sketch5.addConstraint(Sketcher.Constraint("DistanceY", 12, 2, 12, 1, 8.45))
sketch5.addConstraint(Sketcher.Constraint("DistanceY", 9, 3, -1, 1, 24.2))
sketch5.addConstraint(Sketcher.Constraint("DistanceY", 17, 3, -1, 1, 5.5))
sketch5.addConstraint(Sketcher.Constraint("DistanceX", -1, 1, 3, 3, 5.95))
pad2 = body.newObject("PartDesign::Pad", "Pad001")
pad2.Profile = sketch5
pad2.Length = 0.5
pad2.Reversed = True

# Sketch on XY plane
sketch6 = body.newObject("Sketcher::SketchObject", "Sketch005")
sketch6.AttachmentSupport = (doc.getObject("XY_Plane"), [""])
sketch6.MapMode = "FlatFace"
sketch6.AttachmentOffset = App.Placement(V(0, 0, -79), App.Rotation())
sketch6.addGeometry(Part.Circle(V(-23.4, 4.55, 0), V(0, 0, 1), 1.875), False)
sketch6.addGeometry(Part.Circle(V(-12.4, 6, 0), V(0, 0, 1), 0.65), False)
sketch6.addConstraint(Sketcher.Constraint("Diameter", 1, 1.3))
sketch6.addConstraint(Sketcher.Constraint("Diameter", 0, 3.75))
sketch6.addConstraint(Sketcher.Constraint("DistanceY", -1, 1, 1, 3, 6.0))
sketch6.addConstraint(Sketcher.Constraint("DistanceX", 0, 3, 1, 3, 11.0))
sketch6.addConstraint(Sketcher.Constraint("DistanceX", 0, 3, -1, 1, 23.4))
sketch6.addConstraint(Sketcher.Constraint("DistanceY", -1, 1, 0, 3, 4.55))
pocket4 = body.newObject("PartDesign::Pocket", "Pocket003")
pocket4.Profile = sketch6
pocket4.Length = 25
pocket4.Reversed = True

# Sketch on XY plane
sketch7 = body.newObject("Sketcher::SketchObject", "Sketch006")
sketch7.AttachmentSupport = (doc.getObject("XY_Plane"), [""])
sketch7.MapMode = "FlatFace"
sketch7.AttachmentOffset = App.Placement(V(0, 0, 79), App.Rotation())
sketch7.addGeometry(Part.Circle(V(6.4, 5.8, 0), V(0, 0, 1), 0.65), False)
sketch7.addGeometry(Part.LineSegment(V(-2.5, 6.75, 0), V(-8.2, 6.75, 0)), False)
sketch7.addGeometry(Part.ArcOfCircle(Part.Circle(V(-8.2, 5.25, 0), V(0, 0, 1), 1.5), math.radians(90), math.radians(270)), False)
sketch7.addGeometry(Part.LineSegment(V(-8.2, 3.75, 0), V(-2.5, 3.75, 0)), False)
sketch7.addGeometry(Part.ArcOfCircle(Part.Circle(V(-2.5, 5.25, 0), V(0, 0, 1), 1.5), math.radians(-90), math.radians(90)), False)
sketch7.addConstraint(Sketcher.Constraint("Tangent", 1, 2, 2, 1))
sketch7.addConstraint(Sketcher.Constraint("Tangent", 2, 2, 3, 1))
sketch7.addConstraint(Sketcher.Constraint("Tangent", 3, 2, 4, 1))
sketch7.addConstraint(Sketcher.Constraint("Tangent", 4, 2, 1, 1))
sketch7.addConstraint(Sketcher.Constraint("Horizontal", 1))
sketch7.addConstraint(Sketcher.Constraint("Horizontal", 3))
sketch7.addConstraint(Sketcher.Constraint("Diameter", 0, 1.3))
sketch7.addConstraint(Sketcher.Constraint("Radius", 2, 1.5))
sketch7.addConstraint(Sketcher.Constraint("DistanceX", 1, 2, 1, 1, 5.7))
sketch7.addConstraint(Sketcher.Constraint("DistanceX", -1, 1, 0, 3, 6.4))
sketch7.addConstraint(Sketcher.Constraint("DistanceY", -1, 1, 0, 3, 5.8))
sketch7.addConstraint(Sketcher.Constraint("DistanceX", 2, 3, -1, 1, 8.2))
sketch7.addConstraint(Sketcher.Constraint("DistanceY", -1, 1, 2, 3, 5.25))
pocket5 = body.newObject("PartDesign::Pocket", "Pocket004")
pocket5.Profile = sketch7
pocket5.Length = 7

# Sketch on XZ plane
sketch8 = body.newObject("Sketcher::SketchObject", "Sketch007")
sketch8.AttachmentSupport = (doc.getObject("XZ_Plane"), [""])
sketch8.MapMode = "FlatFace"
sketch8.addGeometry(Part.Circle(V(0, -55.5, 0), V(0, 0, 1), 5.25), False)
sketch8.addConstraint(Sketcher.Constraint("PointOnObject", 0, 3, -2))
sketch8.addConstraint(Sketcher.Constraint("Diameter", 0, 10.5))
sketch8.addConstraint(Sketcher.Constraint("DistanceY", 0, 3, -1, 1, 55.5))
pocket6 = body.newObject("PartDesign::Pocket", "Pocket005")
pocket6.Profile = sketch8
pocket6.Length = 0.9
doc.recompute()

chamfer = body.newObject("PartDesign::Chamfer", "Chamfer")
chamfer.Base = (pocket6, edges_at(pocket6, [(-5.25, 0, -55.5)]))
chamfer.Size = 0.8

# Sketch on XZ plane
sketch9 = body.newObject("Sketcher::SketchObject", "Sketch008")
sketch9.AttachmentSupport = (doc.getObject("XZ_Plane"), [""])
sketch9.MapMode = "FlatFace"
sketch9.addGeometry(Part.LineSegment(V(16.5, -74.5, 0), V(25.4, -74.5, 0)), False)
sketch9.addGeometry(Part.ArcOfCircle(Part.Circle(V(25.4, -69, 0), V(0, 0, 1), 5.5), math.radians(-90), math.radians(90)), False)
sketch9.addGeometry(Part.LineSegment(V(25.4, -63.5, 0), V(16.5, -63.5, 0)), False)
sketch9.addGeometry(Part.ArcOfCircle(Part.Circle(V(16.5, -69, 0), V(0, 0, 1), 5.5), math.radians(90), math.radians(270)), False)
sketch9.addConstraint(Sketcher.Constraint("Tangent", 0, 2, 1, 1))
sketch9.addConstraint(Sketcher.Constraint("Tangent", 1, 2, 2, 1))
sketch9.addConstraint(Sketcher.Constraint("Tangent", 2, 2, 3, 1))
sketch9.addConstraint(Sketcher.Constraint("Tangent", 3, 2, 0, 1))
sketch9.addConstraint(Sketcher.Constraint("Horizontal", 0))
sketch9.addConstraint(Sketcher.Constraint("Horizontal", 2))
sketch9.addConstraint(Sketcher.Constraint("Radius", 1, 5.5))
sketch9.addConstraint(Sketcher.Constraint("DistanceX", 0, 1, 0, 2, 8.9))
sketch9.addConstraint(Sketcher.Constraint("DistanceY", 1, 3, -1, 1, 69.0))
sketch9.addConstraint(Sketcher.Constraint("DistanceX", -1, 1, 1, 3, 25.4))
pocket7 = body.newObject("PartDesign::Pocket", "Pocket006")
pocket7.Profile = sketch9
pocket7.Length = 0.3
doc.recompute()

chamfer2 = body.newObject("PartDesign::Chamfer", "Chamfer001")
chamfer2.Base = (pocket7, edges_at(pocket7, [
    (30.9, 0, -69),
    (20.95, 0, -63.5),
    (11, 0, -69),
    (20.95, 0, -74.5),
]))
chamfer2.Size = 0.2

doc.recompute()
